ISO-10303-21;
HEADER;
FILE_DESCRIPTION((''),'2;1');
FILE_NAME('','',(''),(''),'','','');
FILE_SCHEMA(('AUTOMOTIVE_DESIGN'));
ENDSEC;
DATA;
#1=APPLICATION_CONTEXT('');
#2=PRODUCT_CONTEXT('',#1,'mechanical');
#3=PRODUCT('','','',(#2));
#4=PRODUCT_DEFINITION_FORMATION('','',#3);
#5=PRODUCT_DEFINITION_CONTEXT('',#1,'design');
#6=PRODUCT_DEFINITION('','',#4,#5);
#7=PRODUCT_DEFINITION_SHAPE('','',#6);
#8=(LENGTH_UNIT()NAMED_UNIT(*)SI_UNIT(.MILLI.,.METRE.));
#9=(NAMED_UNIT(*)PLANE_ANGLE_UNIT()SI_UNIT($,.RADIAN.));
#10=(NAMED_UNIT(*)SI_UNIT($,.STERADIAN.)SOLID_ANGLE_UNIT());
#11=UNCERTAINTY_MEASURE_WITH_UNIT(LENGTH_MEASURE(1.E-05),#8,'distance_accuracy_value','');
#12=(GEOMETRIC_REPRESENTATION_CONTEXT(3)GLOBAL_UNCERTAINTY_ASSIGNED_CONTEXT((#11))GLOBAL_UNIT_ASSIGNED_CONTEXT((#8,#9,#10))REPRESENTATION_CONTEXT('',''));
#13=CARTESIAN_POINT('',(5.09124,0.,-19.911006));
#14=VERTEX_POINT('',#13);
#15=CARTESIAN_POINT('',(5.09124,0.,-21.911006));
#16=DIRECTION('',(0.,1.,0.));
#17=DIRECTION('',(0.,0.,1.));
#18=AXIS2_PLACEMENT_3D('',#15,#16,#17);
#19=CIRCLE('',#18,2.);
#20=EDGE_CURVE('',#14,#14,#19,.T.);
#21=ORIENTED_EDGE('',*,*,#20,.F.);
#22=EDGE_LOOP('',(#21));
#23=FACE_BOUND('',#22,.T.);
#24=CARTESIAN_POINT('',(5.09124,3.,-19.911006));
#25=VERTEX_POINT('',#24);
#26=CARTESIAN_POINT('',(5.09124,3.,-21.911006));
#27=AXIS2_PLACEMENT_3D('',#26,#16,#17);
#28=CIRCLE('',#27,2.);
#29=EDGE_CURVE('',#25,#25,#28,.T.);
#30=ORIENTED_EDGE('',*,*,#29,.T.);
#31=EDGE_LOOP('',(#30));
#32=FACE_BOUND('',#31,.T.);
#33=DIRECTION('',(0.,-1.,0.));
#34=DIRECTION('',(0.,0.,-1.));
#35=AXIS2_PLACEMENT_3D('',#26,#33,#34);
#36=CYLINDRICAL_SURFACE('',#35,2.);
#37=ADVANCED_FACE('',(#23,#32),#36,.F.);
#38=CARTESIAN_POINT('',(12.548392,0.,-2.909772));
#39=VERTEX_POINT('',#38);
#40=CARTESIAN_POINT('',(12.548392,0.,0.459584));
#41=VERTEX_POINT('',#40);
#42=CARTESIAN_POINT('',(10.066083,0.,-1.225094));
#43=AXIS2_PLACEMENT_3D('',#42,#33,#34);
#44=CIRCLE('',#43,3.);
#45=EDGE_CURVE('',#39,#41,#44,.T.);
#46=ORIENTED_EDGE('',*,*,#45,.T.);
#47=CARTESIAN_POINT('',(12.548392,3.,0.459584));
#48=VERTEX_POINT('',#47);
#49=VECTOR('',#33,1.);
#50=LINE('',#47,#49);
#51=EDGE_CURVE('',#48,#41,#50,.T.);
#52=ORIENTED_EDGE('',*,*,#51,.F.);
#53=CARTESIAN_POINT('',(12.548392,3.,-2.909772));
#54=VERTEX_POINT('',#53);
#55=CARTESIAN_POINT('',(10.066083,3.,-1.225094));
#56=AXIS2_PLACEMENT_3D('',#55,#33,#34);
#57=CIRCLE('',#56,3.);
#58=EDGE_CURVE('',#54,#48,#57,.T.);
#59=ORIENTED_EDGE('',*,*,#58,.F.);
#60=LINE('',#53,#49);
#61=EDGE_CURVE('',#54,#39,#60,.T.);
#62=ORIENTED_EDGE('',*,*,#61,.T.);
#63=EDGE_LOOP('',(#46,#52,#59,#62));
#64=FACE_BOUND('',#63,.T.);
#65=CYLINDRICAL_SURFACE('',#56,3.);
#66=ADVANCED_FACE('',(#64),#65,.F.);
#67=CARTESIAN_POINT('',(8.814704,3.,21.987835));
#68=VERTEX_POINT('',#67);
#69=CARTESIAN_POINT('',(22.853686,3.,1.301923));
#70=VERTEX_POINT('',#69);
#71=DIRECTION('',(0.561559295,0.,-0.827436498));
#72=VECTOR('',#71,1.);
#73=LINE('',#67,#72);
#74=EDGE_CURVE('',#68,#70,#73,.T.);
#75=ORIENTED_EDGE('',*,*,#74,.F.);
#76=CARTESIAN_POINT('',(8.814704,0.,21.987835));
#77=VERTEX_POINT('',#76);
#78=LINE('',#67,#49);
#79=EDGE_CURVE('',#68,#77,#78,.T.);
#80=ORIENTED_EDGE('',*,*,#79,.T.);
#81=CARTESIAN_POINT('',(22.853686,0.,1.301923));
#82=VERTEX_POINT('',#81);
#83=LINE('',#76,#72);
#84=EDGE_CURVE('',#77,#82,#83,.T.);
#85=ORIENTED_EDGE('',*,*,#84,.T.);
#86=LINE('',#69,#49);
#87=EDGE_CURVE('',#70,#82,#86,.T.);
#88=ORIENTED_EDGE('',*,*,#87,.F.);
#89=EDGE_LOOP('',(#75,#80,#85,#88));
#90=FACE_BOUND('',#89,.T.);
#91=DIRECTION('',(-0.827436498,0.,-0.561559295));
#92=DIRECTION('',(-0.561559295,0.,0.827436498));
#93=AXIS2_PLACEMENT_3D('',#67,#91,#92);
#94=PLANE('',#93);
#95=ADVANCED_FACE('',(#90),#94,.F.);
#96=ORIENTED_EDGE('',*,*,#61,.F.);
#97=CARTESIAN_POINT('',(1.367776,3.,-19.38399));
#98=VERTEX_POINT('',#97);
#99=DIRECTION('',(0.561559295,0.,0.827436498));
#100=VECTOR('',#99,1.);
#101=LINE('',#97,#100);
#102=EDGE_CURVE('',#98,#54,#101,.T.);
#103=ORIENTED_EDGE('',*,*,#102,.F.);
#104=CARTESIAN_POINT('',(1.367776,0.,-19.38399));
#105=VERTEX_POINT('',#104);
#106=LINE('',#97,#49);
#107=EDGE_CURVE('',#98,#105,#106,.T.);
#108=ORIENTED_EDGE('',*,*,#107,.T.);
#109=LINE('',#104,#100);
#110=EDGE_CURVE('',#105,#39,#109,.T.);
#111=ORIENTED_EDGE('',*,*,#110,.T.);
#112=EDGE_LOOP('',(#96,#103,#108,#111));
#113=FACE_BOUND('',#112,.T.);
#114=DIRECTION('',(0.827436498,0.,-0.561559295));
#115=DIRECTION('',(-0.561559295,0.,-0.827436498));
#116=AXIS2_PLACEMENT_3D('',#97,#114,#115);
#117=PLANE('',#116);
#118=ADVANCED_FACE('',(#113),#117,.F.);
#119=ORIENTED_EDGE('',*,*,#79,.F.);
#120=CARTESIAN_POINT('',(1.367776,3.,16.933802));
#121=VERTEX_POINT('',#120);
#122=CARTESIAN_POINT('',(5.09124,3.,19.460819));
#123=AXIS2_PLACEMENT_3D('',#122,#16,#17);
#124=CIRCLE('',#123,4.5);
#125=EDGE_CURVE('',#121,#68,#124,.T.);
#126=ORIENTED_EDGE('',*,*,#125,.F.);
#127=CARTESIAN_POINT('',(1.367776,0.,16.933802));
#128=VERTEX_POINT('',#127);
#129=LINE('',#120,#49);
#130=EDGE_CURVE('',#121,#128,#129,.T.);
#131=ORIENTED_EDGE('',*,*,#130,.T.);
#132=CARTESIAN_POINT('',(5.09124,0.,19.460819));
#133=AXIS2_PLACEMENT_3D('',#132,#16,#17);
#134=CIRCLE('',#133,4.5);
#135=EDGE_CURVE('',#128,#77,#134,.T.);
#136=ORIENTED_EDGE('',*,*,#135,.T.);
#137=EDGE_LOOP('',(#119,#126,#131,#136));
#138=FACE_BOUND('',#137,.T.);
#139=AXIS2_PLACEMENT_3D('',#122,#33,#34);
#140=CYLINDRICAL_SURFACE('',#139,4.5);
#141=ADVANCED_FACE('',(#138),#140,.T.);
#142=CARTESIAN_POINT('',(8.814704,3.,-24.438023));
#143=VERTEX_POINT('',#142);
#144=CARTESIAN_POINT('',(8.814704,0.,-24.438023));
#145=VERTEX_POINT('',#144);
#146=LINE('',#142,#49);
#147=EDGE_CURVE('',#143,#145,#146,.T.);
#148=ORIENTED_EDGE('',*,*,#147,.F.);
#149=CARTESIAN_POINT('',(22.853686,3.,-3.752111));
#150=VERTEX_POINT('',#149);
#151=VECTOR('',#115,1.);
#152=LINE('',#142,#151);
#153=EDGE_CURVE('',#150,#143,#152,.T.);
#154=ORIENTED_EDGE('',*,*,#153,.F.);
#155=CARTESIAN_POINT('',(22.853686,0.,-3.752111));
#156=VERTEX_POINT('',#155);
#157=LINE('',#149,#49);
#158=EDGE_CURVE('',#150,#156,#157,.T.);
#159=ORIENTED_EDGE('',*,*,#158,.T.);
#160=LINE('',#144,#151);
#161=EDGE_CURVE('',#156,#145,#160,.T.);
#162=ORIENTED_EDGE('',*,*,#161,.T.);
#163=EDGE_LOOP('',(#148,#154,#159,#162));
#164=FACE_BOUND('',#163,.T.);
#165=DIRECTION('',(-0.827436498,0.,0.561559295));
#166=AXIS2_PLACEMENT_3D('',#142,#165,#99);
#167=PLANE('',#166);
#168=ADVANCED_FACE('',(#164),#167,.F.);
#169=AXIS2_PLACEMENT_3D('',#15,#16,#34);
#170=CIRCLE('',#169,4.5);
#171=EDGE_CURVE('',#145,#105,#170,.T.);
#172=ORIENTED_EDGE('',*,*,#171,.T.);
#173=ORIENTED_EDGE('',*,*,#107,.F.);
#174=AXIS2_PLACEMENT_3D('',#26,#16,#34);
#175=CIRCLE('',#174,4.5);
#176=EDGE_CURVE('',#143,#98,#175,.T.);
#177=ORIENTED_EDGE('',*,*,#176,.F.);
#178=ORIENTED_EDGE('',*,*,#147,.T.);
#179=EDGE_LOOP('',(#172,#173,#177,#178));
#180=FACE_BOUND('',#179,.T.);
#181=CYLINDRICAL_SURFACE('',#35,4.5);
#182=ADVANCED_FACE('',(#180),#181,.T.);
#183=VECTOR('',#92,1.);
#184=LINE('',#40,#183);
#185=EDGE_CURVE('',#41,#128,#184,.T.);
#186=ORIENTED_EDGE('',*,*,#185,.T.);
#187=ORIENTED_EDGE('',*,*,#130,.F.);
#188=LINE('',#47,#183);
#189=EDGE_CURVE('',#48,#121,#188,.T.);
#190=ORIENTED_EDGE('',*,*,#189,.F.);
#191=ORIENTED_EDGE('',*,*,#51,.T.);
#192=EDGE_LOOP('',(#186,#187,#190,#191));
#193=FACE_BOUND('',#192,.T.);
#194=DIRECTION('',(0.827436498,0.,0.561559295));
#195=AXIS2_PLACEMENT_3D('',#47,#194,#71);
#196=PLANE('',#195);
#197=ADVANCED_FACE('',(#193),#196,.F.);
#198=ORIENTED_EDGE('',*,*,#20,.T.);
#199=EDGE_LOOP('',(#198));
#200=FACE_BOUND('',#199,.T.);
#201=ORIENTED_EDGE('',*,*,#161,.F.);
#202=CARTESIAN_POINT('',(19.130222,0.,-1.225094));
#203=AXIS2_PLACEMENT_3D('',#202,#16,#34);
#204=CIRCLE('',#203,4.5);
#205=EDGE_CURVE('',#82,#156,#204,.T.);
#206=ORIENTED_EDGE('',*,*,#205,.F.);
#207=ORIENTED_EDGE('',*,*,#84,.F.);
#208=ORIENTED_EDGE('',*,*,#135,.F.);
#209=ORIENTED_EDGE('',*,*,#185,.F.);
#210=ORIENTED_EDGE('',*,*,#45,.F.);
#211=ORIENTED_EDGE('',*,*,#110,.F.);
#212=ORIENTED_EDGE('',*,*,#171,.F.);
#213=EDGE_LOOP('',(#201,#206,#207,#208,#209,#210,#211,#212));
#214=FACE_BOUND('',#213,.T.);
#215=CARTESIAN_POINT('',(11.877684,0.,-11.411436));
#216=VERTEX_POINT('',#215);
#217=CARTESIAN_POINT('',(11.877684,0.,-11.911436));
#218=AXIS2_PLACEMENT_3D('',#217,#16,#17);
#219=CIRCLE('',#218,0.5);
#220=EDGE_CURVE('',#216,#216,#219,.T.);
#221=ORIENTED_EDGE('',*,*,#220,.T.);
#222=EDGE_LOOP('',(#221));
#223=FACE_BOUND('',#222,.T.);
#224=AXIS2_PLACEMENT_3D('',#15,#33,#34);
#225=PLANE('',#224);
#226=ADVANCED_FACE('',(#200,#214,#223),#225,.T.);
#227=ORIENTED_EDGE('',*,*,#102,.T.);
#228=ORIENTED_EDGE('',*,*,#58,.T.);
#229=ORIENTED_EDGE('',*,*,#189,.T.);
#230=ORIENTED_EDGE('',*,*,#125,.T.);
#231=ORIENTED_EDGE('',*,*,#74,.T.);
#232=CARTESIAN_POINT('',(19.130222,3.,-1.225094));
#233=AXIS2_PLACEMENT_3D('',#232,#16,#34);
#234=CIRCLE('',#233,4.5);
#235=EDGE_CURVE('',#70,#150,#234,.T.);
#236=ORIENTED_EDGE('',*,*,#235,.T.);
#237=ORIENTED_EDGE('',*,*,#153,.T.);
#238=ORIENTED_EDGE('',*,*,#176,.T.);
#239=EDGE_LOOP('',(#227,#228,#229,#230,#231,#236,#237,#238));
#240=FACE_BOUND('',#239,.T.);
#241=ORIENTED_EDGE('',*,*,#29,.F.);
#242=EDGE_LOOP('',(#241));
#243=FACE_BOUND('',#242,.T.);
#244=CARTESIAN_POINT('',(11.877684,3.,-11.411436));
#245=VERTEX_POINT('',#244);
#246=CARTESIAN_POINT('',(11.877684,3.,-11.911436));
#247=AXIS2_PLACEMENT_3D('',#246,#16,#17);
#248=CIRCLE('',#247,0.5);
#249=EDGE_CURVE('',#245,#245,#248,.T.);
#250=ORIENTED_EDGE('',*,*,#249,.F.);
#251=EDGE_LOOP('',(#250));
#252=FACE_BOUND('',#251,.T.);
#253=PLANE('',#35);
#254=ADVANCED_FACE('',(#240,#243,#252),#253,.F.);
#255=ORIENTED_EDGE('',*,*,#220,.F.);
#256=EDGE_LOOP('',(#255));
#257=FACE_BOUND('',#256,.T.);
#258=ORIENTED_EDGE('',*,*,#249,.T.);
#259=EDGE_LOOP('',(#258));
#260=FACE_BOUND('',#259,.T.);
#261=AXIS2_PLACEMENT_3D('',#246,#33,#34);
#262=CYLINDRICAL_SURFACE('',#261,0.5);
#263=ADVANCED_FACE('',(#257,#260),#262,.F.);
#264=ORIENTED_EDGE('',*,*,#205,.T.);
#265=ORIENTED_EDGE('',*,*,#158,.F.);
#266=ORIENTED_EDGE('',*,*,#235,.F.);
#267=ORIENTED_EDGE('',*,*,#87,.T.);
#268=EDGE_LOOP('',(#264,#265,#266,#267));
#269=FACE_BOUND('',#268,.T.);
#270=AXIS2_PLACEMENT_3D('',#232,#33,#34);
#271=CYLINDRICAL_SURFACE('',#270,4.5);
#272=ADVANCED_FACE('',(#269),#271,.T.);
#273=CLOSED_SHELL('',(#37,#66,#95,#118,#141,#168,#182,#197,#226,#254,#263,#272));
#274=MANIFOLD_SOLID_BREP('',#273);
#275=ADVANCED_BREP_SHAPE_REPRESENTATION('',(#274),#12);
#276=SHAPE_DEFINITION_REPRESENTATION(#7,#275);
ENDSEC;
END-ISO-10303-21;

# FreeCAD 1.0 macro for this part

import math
import FreeCAD as App
import Part
import Sketcher

V = App.Vector
Q = App.Units.Quantity

doc = App.newDocument("Part")
body = doc.addObject("PartDesign::Body", "Body")

sketch1 = doc.addObject("Sketcher::SketchObject", "Sketch")
body.addObject(sketch1)
sketch1.AttachmentSupport = (doc.XZ_Plane, [""])
sketch1.MapMode = "FlatFace"
sketch1.addGeometry([
    Part.LineSegment(V(22.853686, -3.752111, 0), V(8.814704, -24.438023, 0)),
    Part.ArcOfCircle(Part.Circle(V(5.09124, -21.911006, 0), V(0, 0, 1), 4.5), math.radians(145.836298), math.radians(325.836298)),
    Part.LineSegment(V(1.367776, -19.38399, 0), V(12.548392, -2.909772, 0)),
    Part.ArcOfCircle(Part.Circle(V(10.066083, -1.225094, 0), V(0, 0, 1), 3), math.radians(-34.163702), math.radians(34.163702)),
    Part.LineSegment(V(12.548392, 0.459584, 0), V(1.367776, 16.933802, 0)),
    Part.ArcOfCircle(Part.Circle(V(5.09124, 19.460819, 0), V(0, 0, 1), 4.5), math.radians(34.163702), math.radians(214.163702)),
    Part.LineSegment(V(8.814704, 21.987835, 0), V(22.853686, 1.301923, 0)),
    Part.ArcOfCircle(Part.Circle(V(19.130222, -1.225094, 0), V(0, 0, 1), 4.5), math.radians(-34.163702), math.radians(34.163702)),
    Part.Circle(V(11.877684, -11.911436, 0), V(0, 0, 1), 0.5),
    Part.Circle(V(5.09124, -21.911006, 0), V(0, 0, 1), 2),
], False)
sketch1.addConstraint([
    Sketcher.Constraint("Tangent", 0, 2, 1, 2),
    Sketcher.Constraint("Tangent", 1, 1, 2, 1),
    Sketcher.Constraint("Tangent", 2, 2, 3, 1),
    Sketcher.Constraint("Tangent", 3, 2, 4, 1),
    Sketcher.Constraint("Tangent", 4, 2, 5, 2),
    Sketcher.Constraint("Tangent", 5, 1, 6, 1),
    Sketcher.Constraint("Tangent", 6, 2, 7, 2),
    Sketcher.Constraint("Tangent", 7, 1, 0, 1),
    Sketcher.Constraint("Coincident", 9, 3, 1, 3),
    Sketcher.Constraint("Equal", 1, 5),
    Sketcher.Constraint("Equal", 5, 7),
    Sketcher.Constraint("Parallel", 0, 2),
    Sketcher.Constraint("Parallel", 4, 6),
    Sketcher.Constraint("Horizontal", 3, 3, 7, 3),
    Sketcher.Constraint("Vertical", 1, 3, 5, 3),
    Sketcher.Constraint("Diameter", 8, Q("1 mm")),
    Sketcher.Constraint("Diameter", 9, Q("4 mm")),
    Sketcher.Constraint("Radius", 3, Q("3 mm")),
    Sketcher.Constraint("Radius", 1, Q("4.5 mm")),
    Sketcher.Constraint("Distance", 0, Q("25 mm")),
    Sketcher.Constraint("DistanceY", -1, 1, 4, 2, Q("16.933802 mm")),
    Sketcher.Constraint("DistanceX", 3, 3, 8, 3, Q("1.811601 mm")),
    Sketcher.Constraint("Distance", 2, Q("19.909948 mm")),
    Sketcher.Constraint("DistanceX", -1, 1, 1, 3, Q("5.09124 mm")),
    Sketcher.Constraint("DistanceY", 1, 3, 8, 3, Q("9.99957 mm")),
])
pad1 = doc.addObject("PartDesign::Pad", "Pad")
body.addObject(pad1)
pad1.Profile = sketch1
pad1.Length = 3
pad1.Reversed = True

doc.recompute()
